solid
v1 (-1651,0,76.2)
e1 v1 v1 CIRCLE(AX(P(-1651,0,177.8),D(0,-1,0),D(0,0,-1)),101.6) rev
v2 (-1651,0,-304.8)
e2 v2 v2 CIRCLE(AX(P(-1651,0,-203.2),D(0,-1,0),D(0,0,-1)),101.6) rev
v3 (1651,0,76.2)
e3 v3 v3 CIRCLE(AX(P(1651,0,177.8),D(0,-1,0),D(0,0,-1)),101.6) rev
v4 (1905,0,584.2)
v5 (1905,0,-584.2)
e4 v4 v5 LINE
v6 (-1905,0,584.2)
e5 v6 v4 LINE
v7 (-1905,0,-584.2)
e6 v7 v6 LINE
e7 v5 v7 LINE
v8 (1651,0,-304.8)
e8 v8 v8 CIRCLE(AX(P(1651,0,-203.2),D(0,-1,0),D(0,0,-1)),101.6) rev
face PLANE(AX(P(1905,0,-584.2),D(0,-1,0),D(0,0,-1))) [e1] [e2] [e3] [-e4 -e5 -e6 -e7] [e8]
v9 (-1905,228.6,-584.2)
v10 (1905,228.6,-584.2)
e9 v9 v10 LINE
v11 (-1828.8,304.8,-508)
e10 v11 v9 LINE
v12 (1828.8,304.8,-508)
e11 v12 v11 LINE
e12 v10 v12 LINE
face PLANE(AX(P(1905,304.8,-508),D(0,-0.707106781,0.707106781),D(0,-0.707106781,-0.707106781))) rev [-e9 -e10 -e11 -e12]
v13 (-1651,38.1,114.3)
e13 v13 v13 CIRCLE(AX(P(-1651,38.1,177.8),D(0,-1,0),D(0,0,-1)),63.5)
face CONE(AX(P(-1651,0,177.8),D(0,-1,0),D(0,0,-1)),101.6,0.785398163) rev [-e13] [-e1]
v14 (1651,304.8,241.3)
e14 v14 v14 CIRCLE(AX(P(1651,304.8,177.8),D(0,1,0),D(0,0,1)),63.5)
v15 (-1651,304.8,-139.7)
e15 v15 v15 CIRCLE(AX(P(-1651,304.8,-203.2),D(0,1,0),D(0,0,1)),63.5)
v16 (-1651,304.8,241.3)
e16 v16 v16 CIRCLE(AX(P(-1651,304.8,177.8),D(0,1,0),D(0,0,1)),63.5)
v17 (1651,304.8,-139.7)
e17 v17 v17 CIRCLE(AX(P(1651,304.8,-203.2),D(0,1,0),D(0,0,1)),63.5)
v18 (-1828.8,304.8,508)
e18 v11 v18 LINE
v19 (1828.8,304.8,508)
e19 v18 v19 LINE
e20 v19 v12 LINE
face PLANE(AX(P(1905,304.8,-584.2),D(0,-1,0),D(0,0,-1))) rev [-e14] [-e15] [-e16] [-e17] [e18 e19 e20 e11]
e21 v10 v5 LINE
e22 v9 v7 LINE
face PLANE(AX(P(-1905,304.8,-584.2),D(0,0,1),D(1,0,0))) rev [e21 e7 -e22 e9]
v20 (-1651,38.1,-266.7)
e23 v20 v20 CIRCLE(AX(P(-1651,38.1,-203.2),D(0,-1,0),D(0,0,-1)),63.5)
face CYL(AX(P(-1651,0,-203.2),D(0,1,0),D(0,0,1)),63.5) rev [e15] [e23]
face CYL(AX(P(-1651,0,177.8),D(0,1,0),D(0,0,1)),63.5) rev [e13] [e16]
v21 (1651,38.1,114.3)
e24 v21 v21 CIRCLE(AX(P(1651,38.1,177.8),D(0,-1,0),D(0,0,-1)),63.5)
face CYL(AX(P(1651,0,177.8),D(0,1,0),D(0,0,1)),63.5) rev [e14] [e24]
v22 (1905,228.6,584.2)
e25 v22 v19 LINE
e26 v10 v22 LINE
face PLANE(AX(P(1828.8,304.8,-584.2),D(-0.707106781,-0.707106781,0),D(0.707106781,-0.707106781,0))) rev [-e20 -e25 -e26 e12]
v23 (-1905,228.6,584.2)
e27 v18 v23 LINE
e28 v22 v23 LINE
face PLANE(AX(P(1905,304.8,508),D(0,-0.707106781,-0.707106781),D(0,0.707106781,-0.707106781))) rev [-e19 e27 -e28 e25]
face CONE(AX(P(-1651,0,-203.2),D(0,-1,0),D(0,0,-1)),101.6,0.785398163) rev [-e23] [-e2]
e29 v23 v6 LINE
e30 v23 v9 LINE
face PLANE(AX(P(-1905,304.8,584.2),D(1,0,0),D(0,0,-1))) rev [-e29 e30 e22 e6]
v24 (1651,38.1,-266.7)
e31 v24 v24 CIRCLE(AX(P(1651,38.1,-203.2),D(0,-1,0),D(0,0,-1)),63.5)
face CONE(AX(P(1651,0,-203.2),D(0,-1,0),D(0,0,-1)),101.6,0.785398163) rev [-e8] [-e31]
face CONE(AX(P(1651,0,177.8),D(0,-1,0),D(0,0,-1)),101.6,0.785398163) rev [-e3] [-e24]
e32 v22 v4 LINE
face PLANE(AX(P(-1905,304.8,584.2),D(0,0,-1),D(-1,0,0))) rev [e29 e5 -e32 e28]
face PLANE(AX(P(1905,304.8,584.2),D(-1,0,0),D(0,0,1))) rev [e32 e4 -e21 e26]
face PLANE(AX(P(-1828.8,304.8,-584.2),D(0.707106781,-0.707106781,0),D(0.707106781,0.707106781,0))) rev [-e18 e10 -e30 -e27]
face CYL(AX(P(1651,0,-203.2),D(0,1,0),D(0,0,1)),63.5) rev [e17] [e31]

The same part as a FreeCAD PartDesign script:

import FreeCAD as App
import Part
import Sketcher
Q = App.Units.Quantity


def edges_at(feature, points):
    """Names of the edges that pass closest to the given points."""
    edges = feature.Shape.Edges
    near = lambda p: min(range(len(edges)), key=lambda i: edges[i].distToShape(Part.Vertex(*p))[0])
    return sorted({f"Edge{near(p) + 1}" for p in points})


def add_polygon(sketch, points):
    """Adds a closed chain of lines whose ends are joined by coincident constraints."""
    first, n = sketch.GeometryCount, len(points)
    for a, b in zip(points, points[1:] + points[:1]):
        sketch.addGeometry(Part.LineSegment(App.Vector(*a, 0), App.Vector(*b, 0)), False)
    for i in range(n):
        sketch.addConstraint(Sketcher.Constraint("Coincident", first + i, 2, first + (i + 1) % n, 1))

doc = App.newDocument("Part")
body = doc.addObject("PartDesign::Body", "Body")

# Sketch on XZ plane
sketch1 = doc.addObject("Sketcher::SketchObject", "Sketch")
body.addObject(sketch1)
sketch1.AttachmentSupport = (doc.XZ_Plane, [""])
sketch1.MapMode = "FlatFace"
add_polygon(sketch1, [(-1905, -584), (-1905, 584), (1905, 584), (1905, -584)])  # lines 0-3
sketch1.addConstraint([
    Sketcher.Constraint("Vertical", 0),
    Sketcher.Constraint("Horizontal", 1),
    Sketcher.Constraint("Vertical", 2),
    Sketcher.Constraint("Horizontal", 3),
    Sketcher.Constraint("Symmetric", 0, 2, 2, 2, -1, 1),
    Sketcher.Constraint("DistanceX", 1, 1, 1, 2, Q("150 in")),
    Sketcher.Constraint("DistanceY", 0, 1, 0, 2, Q("46 in")),
])
pad1 = doc.addObject("PartDesign::Pad", "Pad")
body.addObject(pad1)
pad1.Profile = sketch1
pad1.Length = Q("12 in")
pad1.Reversed = True
doc.recompute()

chamfer = doc.addObject("PartDesign::Chamfer", "Chamfer")
body.addObject(chamfer)
chamfer.Base = (pad1, edges_at(pad1, [
    (-1905, 304.8, 0),
    (0, 304.8, 584.2),
    (1905, 304.8, 0),
    (0, 304.8, -584.2),
]))
chamfer.Size = Q("3 in")

# Sketch on XZ plane
sketch2 = doc.addObject("Sketcher::SketchObject", "Sketch001")
body.addObject(sketch2)
sketch2.AttachmentSupport = (doc.XZ_Plane, [""])
sketch2.MapMode = "FlatFace"
sketch2.AttachmentOffset = App.Placement(App.Vector(0, 0, -12 * 25.4), App.Rotation())
sketch2.addGeometry([
    Part.Circle(App.Vector(-1651, 178, 0), App.Vector(0, 0, 1), 64),
    Part.Circle(App.Vector(-1651, -203, 0), App.Vector(0, 0, 1), 64),
    Part.Circle(App.Vector(1651, -203, 0), App.Vector(0, 0, 1), 64),
    Part.Circle(App.Vector(1651, 178, 0), App.Vector(0, 0, 1), 64),
], False)
sketch2.addConstraint([
    Sketcher.Constraint("Equal", 0, 1),
    Sketcher.Constraint("Equal", 1, 2),
    Sketcher.Constraint("Equal", 2, 3),
    Sketcher.Constraint("Symmetric", 1, 3, 2, 3, -2),
    Sketcher.Constraint("Symmetric", 0, 3, 3, 3, -2),
    Sketcher.Constraint("Vertical", 0, 3, 1, 3),
    Sketcher.Constraint("Diameter", 0, Q("5 in")),
    Sketcher.Constraint("DistanceX", 0, 3, -1, 1, Q("65 in")),
    Sketcher.Constraint("DistanceY", -1, 1, 0, 3, Q("7 in")),
    Sketcher.Constraint("DistanceY", 1, 3, -1, 1, Q("8 in")),
])
pocket1 = doc.addObject("PartDesign::Pocket", "Pocket")
body.addObject(pocket1)
pocket1.Profile = sketch2
pocket1.Type = "ThroughAll"
pocket1.Reversed = True
doc.recompute()

chamfer2 = doc.addObject("PartDesign::Chamfer", "Chamfer001")
body.addObject(chamfer2)
chamfer2.Base = (pocket1, edges_at(pocket1, [
    (-1651, 0, 114.3),
    (-1651, 0, -266.7),
    (1651, 0, -266.7),
    (1651, 0, 114.3),
]))
chamfer2.Size = Q("1.5 in")

doc.recompute()
